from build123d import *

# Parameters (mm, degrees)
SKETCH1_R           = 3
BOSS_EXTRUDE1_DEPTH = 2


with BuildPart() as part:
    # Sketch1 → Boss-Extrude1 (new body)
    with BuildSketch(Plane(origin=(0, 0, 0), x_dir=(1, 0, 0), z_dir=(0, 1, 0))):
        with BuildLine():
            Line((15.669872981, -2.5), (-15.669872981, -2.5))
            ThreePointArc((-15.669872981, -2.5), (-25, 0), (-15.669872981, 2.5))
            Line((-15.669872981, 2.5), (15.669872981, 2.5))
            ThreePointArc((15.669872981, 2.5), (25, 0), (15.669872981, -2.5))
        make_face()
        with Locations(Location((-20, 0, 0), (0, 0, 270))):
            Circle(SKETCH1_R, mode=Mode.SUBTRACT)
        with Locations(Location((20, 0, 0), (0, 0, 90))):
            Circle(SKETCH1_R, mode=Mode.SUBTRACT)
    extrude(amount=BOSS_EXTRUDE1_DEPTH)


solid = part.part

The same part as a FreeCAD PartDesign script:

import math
import FreeCAD as App
import Part
import Sketcher
from FreeCAD import Vector

doc = App.newDocument("Part")
params = doc.addObject("Spreadsheet::Sheet", "Params")
for row, (alias, value) in enumerate([
    ("sketch1_diameter", "6 mm"),
    ("sketch1_radius", "5 mm"),
    ("pad1_length", "2 mm"),
], start=1):
    params.set(f"A{row}", alias)
    params.set(f"B{row}", "=" + value)
    params.setAlias(f"B{row}", alias)

body = doc.addObject("PartDesign::Body", "Body")

sketch1 = doc.addObject("Sketcher::SketchObject", "Sketch")
body.addObject(sketch1)
sketch1.AttachmentSupport = (doc.XZ_Plane, [""])
sketch1.MapMode = "FlatFace"
sketch1.addGeometry(Part.LineSegment(Vector(-15.669873, 2.5, 0), Vector(15.669873, 2.5, 0)), False)
sketch1.addGeometry(Part.ArcOfCircle(Part.Circle(Vector(20, 0, 0), Vector(0, 0, 1), 5), math.radians(-150), math.radians(150)), False)
sketch1.addGeometry(Part.LineSegment(Vector(15.669873, -2.5, 0), Vector(-15.669873, -2.5, 0)), False)
sketch1.addGeometry(Part.ArcOfCircle(Part.Circle(Vector(-20, 0, 0), Vector(0, 0, 1), 5), math.radians(30), math.radians(330)), False)
sketch1.addGeometry(Part.Circle(Vector(20, 0, 0), Vector(0, 0, 1), 3), False)
sketch1.addGeometry(Part.Circle(Vector(-20, 0, 0), Vector(0, 0, 1), 3), False)
sketch1.addConstraint(Sketcher.Constraint("Coincident", 0, 2, 1, 2))
sketch1.addConstraint(Sketcher.Constraint("Coincident", 1, 1, 2, 1))
sketch1.addConstraint(Sketcher.Constraint("Coincident", 2, 2, 3, 2))
sketch1.addConstraint(Sketcher.Constraint("Coincident", 3, 1, 0, 1))
sketch1.addConstraint(Sketcher.Constraint("Horizontal", 0))
sketch1.addConstraint(Sketcher.Constraint("Horizontal", 2))
sketch1.addConstraint(Sketcher.Constraint("Coincident", 4, 3, 1, 3))
sketch1.addConstraint(Sketcher.Constraint("Coincident", 5, 3, 3, 3))
sketch1.addConstraint(Sketcher.Constraint("Equal", 1, 3))
sketch1.addConstraint(Sketcher.Constraint("Equal", 4, 5))
sketch1.addConstraint(Sketcher.Constraint("Symmetric", 1, 3, 3, 3, -1, 1))
sketch1.addConstraint(Sketcher.Constraint("Symmetric", 0, 2, 1, 1, -1))
sketch1.addConstraint(Sketcher.Constraint("Diameter", 4, 6.0))
sketch1.addConstraint(Sketcher.Constraint("Radius", 1, 5.0))
sketch1.addConstraint(Sketcher.Constraint("DistanceX", -1, 1, 1, 3, 20.0))
sketch1.addConstraint(Sketcher.Constraint("DistanceY", 1, 1, 0, 2, 5.0))
sketch1.setExpression("Constraints[12]", "Params.sketch1_diameter")
sketch1.setExpression("Constraints[13]", "Params.sketch1_radius")
pad1 = doc.addObject("PartDesign::Pad", "Pad")
body.addObject(pad1)
pad1.Profile = sketch1
pad1.setExpression("Length", "Params.pad1_length")
pad1.Reversed = True

doc.recompute()
